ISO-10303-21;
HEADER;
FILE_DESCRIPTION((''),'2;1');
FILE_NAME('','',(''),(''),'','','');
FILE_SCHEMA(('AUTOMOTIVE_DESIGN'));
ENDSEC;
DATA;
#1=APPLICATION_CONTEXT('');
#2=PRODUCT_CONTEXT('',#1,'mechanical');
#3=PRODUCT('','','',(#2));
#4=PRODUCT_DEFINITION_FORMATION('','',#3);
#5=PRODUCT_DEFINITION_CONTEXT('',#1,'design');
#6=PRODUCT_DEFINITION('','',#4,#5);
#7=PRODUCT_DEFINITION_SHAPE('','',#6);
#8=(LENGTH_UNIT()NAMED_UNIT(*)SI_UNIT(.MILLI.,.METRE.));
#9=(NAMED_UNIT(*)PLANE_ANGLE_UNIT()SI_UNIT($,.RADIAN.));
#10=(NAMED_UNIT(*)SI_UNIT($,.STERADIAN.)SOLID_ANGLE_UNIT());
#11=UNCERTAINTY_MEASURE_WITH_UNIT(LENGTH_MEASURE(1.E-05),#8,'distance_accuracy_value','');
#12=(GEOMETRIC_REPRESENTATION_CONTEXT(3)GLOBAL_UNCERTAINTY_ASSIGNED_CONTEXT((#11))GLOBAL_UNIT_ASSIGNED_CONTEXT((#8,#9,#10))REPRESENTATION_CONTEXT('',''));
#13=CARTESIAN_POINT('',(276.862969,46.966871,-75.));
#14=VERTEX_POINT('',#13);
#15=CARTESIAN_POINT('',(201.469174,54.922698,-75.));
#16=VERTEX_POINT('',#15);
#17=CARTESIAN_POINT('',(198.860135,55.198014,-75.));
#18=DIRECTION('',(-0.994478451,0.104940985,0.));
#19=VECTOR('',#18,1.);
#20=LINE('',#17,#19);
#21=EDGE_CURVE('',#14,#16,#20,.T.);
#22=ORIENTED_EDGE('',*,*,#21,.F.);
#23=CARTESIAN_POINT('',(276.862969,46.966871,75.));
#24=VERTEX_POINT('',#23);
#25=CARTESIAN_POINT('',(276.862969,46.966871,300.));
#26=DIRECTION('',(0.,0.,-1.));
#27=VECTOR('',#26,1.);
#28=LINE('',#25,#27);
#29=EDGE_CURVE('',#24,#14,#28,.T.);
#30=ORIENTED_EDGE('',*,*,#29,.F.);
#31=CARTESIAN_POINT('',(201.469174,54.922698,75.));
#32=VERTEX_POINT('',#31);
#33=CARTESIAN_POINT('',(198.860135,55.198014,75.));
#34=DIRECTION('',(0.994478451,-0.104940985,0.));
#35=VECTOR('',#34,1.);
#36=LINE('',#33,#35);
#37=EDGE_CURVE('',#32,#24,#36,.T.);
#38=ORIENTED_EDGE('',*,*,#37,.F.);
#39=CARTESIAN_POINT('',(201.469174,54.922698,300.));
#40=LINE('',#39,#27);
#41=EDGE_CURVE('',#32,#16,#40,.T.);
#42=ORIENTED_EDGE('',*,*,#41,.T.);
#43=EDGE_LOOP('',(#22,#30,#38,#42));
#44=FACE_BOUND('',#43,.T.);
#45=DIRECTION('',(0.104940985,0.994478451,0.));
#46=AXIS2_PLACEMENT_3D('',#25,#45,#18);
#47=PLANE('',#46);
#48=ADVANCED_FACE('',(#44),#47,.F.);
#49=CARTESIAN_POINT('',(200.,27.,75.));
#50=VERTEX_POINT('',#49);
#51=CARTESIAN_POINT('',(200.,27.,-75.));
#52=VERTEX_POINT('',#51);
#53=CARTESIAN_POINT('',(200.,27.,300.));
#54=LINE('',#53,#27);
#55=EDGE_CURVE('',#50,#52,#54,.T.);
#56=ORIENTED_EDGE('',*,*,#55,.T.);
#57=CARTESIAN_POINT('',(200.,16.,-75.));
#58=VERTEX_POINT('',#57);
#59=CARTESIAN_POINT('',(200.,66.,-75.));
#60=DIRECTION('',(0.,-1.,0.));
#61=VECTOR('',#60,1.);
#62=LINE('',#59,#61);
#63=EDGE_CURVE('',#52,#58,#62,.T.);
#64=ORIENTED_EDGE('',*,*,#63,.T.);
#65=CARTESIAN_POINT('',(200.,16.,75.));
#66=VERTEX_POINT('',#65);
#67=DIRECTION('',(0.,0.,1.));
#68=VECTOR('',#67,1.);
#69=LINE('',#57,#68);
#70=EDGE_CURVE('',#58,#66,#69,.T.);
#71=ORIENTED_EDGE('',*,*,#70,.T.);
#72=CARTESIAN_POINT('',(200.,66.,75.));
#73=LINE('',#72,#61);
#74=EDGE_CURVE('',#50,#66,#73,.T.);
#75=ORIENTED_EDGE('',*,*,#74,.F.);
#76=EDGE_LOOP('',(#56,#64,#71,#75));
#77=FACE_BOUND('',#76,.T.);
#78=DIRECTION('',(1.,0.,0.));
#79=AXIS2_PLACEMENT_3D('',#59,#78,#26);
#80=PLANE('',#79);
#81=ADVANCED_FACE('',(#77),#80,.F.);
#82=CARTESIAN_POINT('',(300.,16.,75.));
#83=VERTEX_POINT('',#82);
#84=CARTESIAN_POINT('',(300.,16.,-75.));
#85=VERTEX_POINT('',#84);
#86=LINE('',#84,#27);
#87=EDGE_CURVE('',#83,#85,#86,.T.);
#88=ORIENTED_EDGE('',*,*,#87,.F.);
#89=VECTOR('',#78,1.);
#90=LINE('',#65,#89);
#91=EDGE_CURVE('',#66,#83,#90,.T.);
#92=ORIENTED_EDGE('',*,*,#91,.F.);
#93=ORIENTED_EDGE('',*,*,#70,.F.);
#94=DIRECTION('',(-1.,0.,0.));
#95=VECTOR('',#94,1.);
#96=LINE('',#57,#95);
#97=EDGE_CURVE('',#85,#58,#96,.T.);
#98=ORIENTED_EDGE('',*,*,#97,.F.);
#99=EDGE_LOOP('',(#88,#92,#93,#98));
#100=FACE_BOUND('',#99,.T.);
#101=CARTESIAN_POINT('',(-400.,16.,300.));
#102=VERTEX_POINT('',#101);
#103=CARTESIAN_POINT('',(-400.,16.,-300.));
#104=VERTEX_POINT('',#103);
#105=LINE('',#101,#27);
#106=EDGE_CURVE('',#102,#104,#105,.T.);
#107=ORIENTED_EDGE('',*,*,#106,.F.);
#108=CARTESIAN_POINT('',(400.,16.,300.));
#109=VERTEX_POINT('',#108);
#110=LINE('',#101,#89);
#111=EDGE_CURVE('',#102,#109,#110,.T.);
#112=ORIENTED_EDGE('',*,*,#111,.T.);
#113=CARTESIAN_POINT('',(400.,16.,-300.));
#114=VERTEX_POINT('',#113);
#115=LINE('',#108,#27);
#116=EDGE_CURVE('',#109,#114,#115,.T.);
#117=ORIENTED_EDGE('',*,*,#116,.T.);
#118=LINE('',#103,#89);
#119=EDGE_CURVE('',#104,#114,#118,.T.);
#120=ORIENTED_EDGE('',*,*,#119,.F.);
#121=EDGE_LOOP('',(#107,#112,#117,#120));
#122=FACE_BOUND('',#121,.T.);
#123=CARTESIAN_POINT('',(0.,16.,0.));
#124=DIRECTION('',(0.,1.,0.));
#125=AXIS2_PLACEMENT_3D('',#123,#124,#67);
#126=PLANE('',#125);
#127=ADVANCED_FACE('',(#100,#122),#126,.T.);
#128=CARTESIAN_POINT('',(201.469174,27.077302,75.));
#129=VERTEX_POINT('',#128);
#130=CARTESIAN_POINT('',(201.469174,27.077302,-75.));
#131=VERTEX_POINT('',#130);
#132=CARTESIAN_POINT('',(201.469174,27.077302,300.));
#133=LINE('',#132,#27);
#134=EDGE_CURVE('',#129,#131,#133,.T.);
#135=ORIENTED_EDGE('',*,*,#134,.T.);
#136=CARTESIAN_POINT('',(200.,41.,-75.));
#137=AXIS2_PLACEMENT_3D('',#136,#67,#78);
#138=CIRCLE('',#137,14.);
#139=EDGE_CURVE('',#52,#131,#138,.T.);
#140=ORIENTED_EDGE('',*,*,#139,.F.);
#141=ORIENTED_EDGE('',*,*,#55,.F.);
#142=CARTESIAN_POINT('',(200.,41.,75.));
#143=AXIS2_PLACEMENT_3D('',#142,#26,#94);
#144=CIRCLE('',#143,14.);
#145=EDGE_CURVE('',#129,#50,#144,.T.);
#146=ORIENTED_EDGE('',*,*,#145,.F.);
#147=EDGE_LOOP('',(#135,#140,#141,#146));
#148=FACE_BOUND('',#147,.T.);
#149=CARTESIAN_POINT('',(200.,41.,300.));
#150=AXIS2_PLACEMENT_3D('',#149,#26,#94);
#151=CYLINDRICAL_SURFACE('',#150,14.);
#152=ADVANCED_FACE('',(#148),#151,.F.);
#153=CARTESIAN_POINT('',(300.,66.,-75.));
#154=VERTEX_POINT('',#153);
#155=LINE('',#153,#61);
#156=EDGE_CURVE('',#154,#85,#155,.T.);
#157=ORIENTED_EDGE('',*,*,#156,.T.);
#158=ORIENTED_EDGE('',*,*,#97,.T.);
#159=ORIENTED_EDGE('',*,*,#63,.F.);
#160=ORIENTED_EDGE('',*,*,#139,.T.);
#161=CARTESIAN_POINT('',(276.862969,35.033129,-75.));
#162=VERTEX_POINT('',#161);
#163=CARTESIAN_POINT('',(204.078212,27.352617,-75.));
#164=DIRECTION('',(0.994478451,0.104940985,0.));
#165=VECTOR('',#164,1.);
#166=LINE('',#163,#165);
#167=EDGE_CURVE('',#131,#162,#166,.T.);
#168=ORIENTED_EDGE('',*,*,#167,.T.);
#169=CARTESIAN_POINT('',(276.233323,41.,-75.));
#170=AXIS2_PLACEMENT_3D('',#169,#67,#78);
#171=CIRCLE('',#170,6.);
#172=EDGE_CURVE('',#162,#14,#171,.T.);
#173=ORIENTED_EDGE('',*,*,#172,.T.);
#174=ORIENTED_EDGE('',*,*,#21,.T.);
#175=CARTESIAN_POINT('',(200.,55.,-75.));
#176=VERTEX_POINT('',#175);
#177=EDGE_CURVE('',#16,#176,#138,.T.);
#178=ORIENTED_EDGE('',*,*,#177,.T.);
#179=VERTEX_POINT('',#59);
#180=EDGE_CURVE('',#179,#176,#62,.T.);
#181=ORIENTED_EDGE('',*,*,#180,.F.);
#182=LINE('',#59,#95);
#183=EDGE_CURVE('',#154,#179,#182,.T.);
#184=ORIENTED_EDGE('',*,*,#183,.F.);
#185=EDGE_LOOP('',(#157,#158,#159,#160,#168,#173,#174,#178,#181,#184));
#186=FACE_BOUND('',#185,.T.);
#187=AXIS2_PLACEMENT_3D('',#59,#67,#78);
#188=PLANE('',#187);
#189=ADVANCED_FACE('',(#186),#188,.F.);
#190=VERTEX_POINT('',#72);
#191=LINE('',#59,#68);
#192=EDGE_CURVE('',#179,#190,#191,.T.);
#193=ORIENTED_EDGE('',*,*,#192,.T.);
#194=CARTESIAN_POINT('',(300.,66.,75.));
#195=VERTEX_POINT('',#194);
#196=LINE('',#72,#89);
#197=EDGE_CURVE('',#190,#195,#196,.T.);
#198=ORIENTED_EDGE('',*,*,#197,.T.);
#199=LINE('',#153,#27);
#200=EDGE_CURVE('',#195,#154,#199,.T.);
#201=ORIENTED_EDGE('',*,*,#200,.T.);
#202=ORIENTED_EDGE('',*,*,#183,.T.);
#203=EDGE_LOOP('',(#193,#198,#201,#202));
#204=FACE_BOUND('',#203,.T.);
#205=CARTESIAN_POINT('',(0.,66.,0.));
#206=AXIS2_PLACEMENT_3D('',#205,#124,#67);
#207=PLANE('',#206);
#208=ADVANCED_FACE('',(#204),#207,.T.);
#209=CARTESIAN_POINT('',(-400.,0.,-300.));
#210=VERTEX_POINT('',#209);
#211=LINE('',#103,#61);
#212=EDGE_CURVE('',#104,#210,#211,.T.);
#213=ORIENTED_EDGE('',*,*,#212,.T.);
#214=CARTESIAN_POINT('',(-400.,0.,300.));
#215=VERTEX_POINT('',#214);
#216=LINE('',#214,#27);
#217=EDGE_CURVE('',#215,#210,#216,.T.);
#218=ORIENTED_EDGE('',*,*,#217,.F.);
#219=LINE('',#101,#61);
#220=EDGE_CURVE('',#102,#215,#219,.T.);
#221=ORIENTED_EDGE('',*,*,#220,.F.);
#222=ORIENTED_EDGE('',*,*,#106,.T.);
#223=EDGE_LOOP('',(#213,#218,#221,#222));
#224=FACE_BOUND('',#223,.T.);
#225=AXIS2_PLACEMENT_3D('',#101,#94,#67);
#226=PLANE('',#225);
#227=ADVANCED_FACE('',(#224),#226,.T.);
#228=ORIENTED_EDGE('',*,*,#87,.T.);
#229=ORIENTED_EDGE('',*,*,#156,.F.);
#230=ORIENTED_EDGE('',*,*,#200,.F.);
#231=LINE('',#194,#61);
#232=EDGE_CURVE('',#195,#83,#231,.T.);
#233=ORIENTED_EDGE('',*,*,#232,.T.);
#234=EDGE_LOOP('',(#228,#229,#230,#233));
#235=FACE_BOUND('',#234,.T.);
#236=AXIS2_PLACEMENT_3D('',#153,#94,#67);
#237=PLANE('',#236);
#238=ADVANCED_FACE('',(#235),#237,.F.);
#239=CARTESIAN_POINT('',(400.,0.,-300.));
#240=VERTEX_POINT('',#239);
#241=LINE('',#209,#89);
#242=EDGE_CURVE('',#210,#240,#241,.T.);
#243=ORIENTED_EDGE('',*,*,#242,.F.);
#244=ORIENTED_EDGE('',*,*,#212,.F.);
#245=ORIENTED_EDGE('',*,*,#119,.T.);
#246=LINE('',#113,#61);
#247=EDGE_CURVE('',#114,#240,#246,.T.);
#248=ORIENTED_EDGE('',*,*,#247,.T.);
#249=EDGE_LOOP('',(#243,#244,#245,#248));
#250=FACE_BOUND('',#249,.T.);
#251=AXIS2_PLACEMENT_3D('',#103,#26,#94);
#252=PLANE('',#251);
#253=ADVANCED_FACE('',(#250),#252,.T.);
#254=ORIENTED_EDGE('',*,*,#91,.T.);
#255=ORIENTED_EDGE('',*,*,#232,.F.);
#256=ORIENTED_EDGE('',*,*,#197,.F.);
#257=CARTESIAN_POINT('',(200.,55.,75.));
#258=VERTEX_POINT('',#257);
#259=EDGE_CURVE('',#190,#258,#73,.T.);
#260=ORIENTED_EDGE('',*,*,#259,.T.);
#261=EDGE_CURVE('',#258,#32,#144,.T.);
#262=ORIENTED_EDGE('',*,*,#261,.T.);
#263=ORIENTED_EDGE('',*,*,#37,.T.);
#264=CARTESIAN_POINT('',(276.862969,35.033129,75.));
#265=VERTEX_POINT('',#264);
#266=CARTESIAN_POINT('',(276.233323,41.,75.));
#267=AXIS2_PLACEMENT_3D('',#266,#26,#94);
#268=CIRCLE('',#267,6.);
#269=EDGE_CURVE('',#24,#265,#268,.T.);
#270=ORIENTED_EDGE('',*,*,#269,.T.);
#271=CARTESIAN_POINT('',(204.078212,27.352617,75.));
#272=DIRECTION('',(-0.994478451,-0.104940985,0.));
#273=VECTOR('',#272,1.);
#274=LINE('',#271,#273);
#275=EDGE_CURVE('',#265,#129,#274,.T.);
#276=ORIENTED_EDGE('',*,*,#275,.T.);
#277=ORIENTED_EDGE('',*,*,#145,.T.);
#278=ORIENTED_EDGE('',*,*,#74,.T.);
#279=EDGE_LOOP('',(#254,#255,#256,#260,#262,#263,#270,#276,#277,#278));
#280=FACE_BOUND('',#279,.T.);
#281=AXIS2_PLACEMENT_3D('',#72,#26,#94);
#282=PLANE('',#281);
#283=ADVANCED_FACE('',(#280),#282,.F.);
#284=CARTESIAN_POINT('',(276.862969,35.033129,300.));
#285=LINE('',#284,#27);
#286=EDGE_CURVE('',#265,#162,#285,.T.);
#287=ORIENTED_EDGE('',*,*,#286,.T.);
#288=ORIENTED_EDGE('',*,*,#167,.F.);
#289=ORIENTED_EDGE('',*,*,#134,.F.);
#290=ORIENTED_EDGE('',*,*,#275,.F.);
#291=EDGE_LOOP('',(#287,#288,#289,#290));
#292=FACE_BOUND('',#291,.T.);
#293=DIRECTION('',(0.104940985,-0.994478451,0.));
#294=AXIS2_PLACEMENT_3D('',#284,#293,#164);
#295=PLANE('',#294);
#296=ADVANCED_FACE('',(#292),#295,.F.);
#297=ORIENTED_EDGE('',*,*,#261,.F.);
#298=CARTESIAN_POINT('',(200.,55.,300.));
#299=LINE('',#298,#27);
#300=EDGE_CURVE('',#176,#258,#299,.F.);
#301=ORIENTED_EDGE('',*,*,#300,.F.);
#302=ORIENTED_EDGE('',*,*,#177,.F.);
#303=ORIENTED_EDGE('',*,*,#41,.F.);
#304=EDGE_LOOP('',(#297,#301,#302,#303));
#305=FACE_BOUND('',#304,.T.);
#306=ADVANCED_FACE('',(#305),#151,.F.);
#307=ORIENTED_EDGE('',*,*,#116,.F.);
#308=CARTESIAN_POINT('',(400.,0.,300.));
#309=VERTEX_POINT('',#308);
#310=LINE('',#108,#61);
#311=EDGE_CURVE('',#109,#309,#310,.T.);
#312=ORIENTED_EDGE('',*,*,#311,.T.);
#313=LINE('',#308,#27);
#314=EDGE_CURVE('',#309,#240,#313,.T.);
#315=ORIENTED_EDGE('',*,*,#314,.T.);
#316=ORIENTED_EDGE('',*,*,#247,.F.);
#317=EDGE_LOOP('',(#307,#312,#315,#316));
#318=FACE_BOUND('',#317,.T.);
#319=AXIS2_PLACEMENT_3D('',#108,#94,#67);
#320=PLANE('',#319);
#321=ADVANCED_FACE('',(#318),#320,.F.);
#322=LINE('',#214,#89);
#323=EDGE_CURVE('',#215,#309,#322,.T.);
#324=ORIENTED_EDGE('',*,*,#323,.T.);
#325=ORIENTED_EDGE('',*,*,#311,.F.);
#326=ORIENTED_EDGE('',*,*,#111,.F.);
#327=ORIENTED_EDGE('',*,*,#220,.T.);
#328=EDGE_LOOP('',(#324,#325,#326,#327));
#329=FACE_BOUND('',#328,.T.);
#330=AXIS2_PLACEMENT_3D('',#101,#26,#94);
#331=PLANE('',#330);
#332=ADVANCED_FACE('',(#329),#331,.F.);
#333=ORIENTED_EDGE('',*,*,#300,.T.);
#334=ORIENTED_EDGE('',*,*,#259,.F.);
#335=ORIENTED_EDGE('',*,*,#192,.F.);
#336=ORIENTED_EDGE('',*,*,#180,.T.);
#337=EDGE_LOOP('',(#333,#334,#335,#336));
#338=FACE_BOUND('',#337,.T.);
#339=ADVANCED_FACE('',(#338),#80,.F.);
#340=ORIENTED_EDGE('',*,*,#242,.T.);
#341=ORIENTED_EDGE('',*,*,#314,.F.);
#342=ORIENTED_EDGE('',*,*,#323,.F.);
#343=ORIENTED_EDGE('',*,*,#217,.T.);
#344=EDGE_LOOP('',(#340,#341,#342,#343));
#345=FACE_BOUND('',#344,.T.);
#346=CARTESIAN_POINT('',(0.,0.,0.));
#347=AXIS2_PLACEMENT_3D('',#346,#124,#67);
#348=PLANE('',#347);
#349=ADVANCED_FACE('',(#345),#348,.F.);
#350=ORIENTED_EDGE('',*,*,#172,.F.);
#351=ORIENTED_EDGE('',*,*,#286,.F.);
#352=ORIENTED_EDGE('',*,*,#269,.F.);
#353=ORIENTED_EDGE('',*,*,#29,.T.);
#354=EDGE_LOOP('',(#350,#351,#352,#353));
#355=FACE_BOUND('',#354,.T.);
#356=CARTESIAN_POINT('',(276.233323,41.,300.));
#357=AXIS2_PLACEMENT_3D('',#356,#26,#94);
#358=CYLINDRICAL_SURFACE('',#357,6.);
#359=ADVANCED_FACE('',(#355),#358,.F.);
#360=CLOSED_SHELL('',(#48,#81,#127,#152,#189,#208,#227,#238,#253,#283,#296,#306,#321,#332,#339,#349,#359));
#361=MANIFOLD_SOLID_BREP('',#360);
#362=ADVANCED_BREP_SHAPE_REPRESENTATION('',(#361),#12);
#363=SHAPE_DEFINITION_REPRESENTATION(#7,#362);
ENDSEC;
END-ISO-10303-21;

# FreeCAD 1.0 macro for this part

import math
import FreeCAD as App
import Part
import Sketcher
Q = App.Units.Quantity


def add_polygon(sketch, points):
    """Adds a closed chain of lines whose ends are joined by coincident constraints."""
    first, n = sketch.GeometryCount, len(points)
    for a, b in zip(points, points[1:] + points[:1]):
        sketch.addGeometry(Part.LineSegment(App.Vector(*a, 0), App.Vector(*b, 0)), False)
    for i in range(n):
        sketch.addConstraint(Sketcher.Constraint("Coincident", first + i, 2, first + (i + 1) % n, 1))

doc = App.newDocument("Part")
body = doc.addObject("PartDesign::Body", "Body")

sketch1 = doc.addObject("Sketcher::SketchObject", "Sketch")
body.addObject(sketch1)
sketch1.AttachmentSupport = (doc.XZ_Plane, [""])
sketch1.MapMode = "FlatFace"
add_polygon(sketch1, [(-400, -300), (-400, 300), (400, 300), (400, -300)])
sketch1.addConstraint(Sketcher.Constraint("Vertical", 0))
sketch1.addConstraint(Sketcher.Constraint("Horizontal", 1))
sketch1.addConstraint(Sketcher.Constraint("Vertical", 2))
sketch1.addConstraint(Sketcher.Constraint("Horizontal", 3))
sketch1.addConstraint(Sketcher.Constraint("Symmetric", 0, 2, 2, 2, -1, 1))
sketch1.addConstraint(Sketcher.Constraint("DistanceX", 1, 1, 1, 2, Q("800 mm")))
sketch1.addConstraint(Sketcher.Constraint("DistanceY", 0, 1, 0, 2, Q("600 mm")))
pad1 = doc.addObject("PartDesign::Pad", "Pad")
body.addObject(pad1)
pad1.Profile = sketch1
pad1.Length = 16
pad1.Reversed = True

sketch2 = doc.addObject("Sketcher::SketchObject", "Sketch001")
body.addObject(sketch2)
sketch2.AttachmentSupport = (doc.XZ_Plane, [""])
sketch2.MapMode = "FlatFace"
sketch2.AttachmentOffset = App.Placement(App.Vector(0, 0, -16), App.Rotation())
add_polygon(sketch2, [(200, -75), (200, 75), (300, 75), (300, -75)])
sketch2.addConstraint(Sketcher.Constraint("Vertical", 0))
sketch2.addConstraint(Sketcher.Constraint("Horizontal", 1))
sketch2.addConstraint(Sketcher.Constraint("Vertical", 2))
sketch2.addConstraint(Sketcher.Constraint("Horizontal", 3))
sketch2.addConstraint(Sketcher.Constraint("DistanceX", 1, 1, 1, 2, Q("100 mm")))
sketch2.addConstraint(Sketcher.Constraint("DistanceY", 0, 1, 0, 2, Q("150 mm")))
sketch2.addConstraint(Sketcher.Constraint("DistanceX", -1, 1, 0, 2, Q("200 mm")))
sketch2.addConstraint(Sketcher.Constraint("DistanceY", -1, 1, 0, 2, Q("75 mm")))
pad2 = doc.addObject("PartDesign::Pad", "Pad001")
body.addObject(pad2)
pad2.Profile = sketch2
pad2.Length = 50
pad2.Reversed = True

sketch3 = doc.addObject("Sketcher::SketchObject", "Sketch002")
body.addObject(sketch3)
sketch3.AttachmentSupport = (doc.XY_Plane, [""])
sketch3.MapMode = "FlatFace"
sketch3.AttachmentOffset = App.Placement(App.Vector(0, 0, -75), App.Rotation())
sketch3.addGeometry(Part.LineSegment(App.Vector(201, 55, 0), App.Vector(277, 47, 0)), False)
sketch3.addGeometry(Part.ArcOfCircle(Part.Circle(App.Vector(276, 41, 0), App.Vector(0, 0, 1), 6), math.radians(-84), math.radians(84)), False)
sketch3.addGeometry(Part.LineSegment(App.Vector(277, 35, 0), App.Vector(201, 27, 0)), False)
sketch3.addGeometry(Part.ArcOfCircle(Part.Circle(App.Vector(200, 41, 0), App.Vector(0, 0, 1), 14), math.radians(84), math.radians(276)), False)
sketch3.addConstraint(Sketcher.Constraint("Tangent", 0, 2, 1, 2))
sketch3.addConstraint(Sketcher.Constraint("Tangent", 1, 1, 2, 1))
sketch3.addConstraint(Sketcher.Constraint("Tangent", 2, 2, 3, 2))
sketch3.addConstraint(Sketcher.Constraint("Tangent", 3, 1, 0, 1))
sketch3.addConstraint(Sketcher.Constraint("Horizontal", 1, 3, 3, 3))
sketch3.addConstraint(Sketcher.Constraint("Radius", 1, Q("6 mm")))
sketch3.addConstraint(Sketcher.Constraint("Radius", 3, Q("14 mm")))
sketch3.addConstraint(Sketcher.Constraint("DistanceY", -1, 1, 1, 3, Q("41 mm")))
sketch3.addConstraint(Sketcher.Constraint("DistanceX", -1, 1, 3, 3, Q("200 mm")))
sketch3.addConstraint(Sketcher.Constraint("DistanceX", -1, 1, 0, 2, Q("276.862969 mm")))
pocket1 = doc.addObject("PartDesign::Pocket", "Pocket")
body.addObject(pocket1)
pocket1.Profile = sketch3
pocket1.Type = "ThroughAll"
pocket1.Midplane = True

doc.recompute()
